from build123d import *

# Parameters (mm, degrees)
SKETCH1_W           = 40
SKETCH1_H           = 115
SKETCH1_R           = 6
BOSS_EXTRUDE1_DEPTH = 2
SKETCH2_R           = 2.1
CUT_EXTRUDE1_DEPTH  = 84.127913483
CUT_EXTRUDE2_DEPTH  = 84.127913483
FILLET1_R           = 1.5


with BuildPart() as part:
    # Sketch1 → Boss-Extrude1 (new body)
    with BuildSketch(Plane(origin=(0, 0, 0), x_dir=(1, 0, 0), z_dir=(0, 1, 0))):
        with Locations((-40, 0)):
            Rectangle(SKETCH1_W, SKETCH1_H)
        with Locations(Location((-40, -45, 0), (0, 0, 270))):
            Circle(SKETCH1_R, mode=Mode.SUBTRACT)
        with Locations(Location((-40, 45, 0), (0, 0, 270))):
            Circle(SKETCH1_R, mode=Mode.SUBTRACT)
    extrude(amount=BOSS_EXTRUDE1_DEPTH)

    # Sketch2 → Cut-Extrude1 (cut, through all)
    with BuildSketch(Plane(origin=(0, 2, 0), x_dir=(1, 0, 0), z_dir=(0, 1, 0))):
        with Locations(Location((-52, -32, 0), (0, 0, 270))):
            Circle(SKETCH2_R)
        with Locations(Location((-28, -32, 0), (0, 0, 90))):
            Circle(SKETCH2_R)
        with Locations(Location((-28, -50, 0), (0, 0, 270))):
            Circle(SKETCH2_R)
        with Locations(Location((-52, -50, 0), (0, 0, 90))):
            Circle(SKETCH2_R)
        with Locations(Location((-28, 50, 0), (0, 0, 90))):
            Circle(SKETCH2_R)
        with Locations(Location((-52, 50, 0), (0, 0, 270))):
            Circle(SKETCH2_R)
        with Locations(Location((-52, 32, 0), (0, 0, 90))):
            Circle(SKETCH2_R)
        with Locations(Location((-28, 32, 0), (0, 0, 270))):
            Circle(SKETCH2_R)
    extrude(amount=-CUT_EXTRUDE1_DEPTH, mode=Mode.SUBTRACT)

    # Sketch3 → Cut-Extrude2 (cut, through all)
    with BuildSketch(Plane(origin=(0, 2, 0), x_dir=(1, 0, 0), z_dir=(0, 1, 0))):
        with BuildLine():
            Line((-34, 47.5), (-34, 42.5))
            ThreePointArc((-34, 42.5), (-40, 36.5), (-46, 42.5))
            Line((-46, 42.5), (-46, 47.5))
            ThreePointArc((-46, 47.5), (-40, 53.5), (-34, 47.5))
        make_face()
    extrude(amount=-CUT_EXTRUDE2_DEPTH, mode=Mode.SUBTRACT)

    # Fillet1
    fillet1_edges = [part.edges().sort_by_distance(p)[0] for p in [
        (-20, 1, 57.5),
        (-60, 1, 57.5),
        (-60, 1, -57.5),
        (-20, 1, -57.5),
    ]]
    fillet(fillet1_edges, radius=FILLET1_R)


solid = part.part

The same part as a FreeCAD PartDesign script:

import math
import FreeCAD as App
import Part
import Sketcher
from FreeCAD import Vector
Q = App.Units.Quantity


def edges_at(feature, points):
    """Names of the edges that pass closest to the given points."""
    edges = feature.Shape.Edges
    near = lambda p: min(range(len(edges)), key=lambda i: edges[i].distToShape(Part.Vertex(*p))[0])
    return sorted({f"Edge{near(p) + 1}" for p in points})

doc = App.newDocument("Part")
body = doc.addObject("PartDesign::Body", "Body")

sketch1 = body.newObject("Sketcher::SketchObject", "Sketch")
sketch1.AttachmentSupport = (doc.getObject("XZ_Plane"), [""])
sketch1.MapMode = "FlatFace"
sketch1.addGeometry([
    Part.LineSegment(Vector(-60, -58, 0), Vector(-60, 58, 0)),
    Part.LineSegment(Vector(-60, 58, 0), Vector(-20, 58, 0)),
    Part.LineSegment(Vector(-20, 58, 0), Vector(-20, -58, 0)),
    Part.LineSegment(Vector(-20, -58, 0), Vector(-60, -58, 0)),
    Part.Circle(Vector(-40, 45, 0), Vector(0, 0, 1), 6),
    Part.Circle(Vector(-40, -45, 0), Vector(0, 0, 1), 6),
], False)
sketch1.addConstraint([
    Sketcher.Constraint("Coincident", 0, 2, 1, 1),
    Sketcher.Constraint("Coincident", 1, 2, 2, 1),
    Sketcher.Constraint("Coincident", 2, 2, 3, 1),
    Sketcher.Constraint("Coincident", 3, 2, 0, 1),
    Sketcher.Constraint("Vertical", 0),
    Sketcher.Constraint("Horizontal", 1),
    Sketcher.Constraint("Vertical", 2),
    Sketcher.Constraint("Horizontal", 3),
    Sketcher.Constraint("Equal", 4, 5),
    Sketcher.Constraint("Symmetric", 4, 3, 5, 3, -1),
    Sketcher.Constraint("Diameter", 4, Q("12 mm")),
    Sketcher.Constraint("DistanceX", 1, 1, 1, 2, Q("40 mm")),
    Sketcher.Constraint("DistanceY", 0, 1, 0, 2, Q("115 mm")),
    Sketcher.Constraint("DistanceX", 4, 3, -1, 1, Q("40 mm")),
    Sketcher.Constraint("DistanceY", -1, 1, 4, 3, Q("45 mm")),
    Sketcher.Constraint("DistanceX", 0, 2, -1, 1, Q("60 mm")),
    Sketcher.Constraint("DistanceY", -1, 1, 0, 2, Q("57.5 mm")),
])
pad1 = body.newObject("PartDesign::Pad", "Pad")
pad1.Profile = sketch1
pad1.Length = 2
pad1.Reversed = True

sketch2 = body.newObject("Sketcher::SketchObject", "Sketch001")
sketch2.AttachmentSupport = (doc.getObject("XZ_Plane"), [""])
sketch2.MapMode = "FlatFace"
sketch2.AttachmentOffset = App.Placement(Vector(0, 0, -2), App.Rotation())
sketch2.addGeometry([
    Part.Circle(Vector(-52, 32, 0), Vector(0, 0, 1), 2.1),
    Part.Circle(Vector(-28, 32, 0), Vector(0, 0, 1), 2.1),
    Part.Circle(Vector(-28, 50, 0), Vector(0, 0, 1), 2.1),
    Part.Circle(Vector(-52, 50, 0), Vector(0, 0, 1), 2.1),
    Part.Circle(Vector(-28, -50, 0), Vector(0, 0, 1), 2.1),
    Part.Circle(Vector(-52, -50, 0), Vector(0, 0, 1), 2.1),
    Part.Circle(Vector(-52, -32, 0), Vector(0, 0, 1), 2.1),
    Part.Circle(Vector(-28, -32, 0), Vector(0, 0, 1), 2.1),
], False)
sketch2.addConstraint([
    Sketcher.Constraint("Equal", 0, 1),
    Sketcher.Constraint("Equal", 1, 2),
    Sketcher.Constraint("Equal", 2, 3),
    Sketcher.Constraint("Equal", 3, 4),
    Sketcher.Constraint("Equal", 4, 5),
    Sketcher.Constraint("Equal", 5, 6),
    Sketcher.Constraint("Equal", 6, 7),
    Sketcher.Constraint("Symmetric", 2, 3, 4, 3, -1),
    Sketcher.Constraint("Symmetric", 3, 3, 5, 3, -1),
    Sketcher.Constraint("Symmetric", 0, 3, 6, 3, -1),
    Sketcher.Constraint("Symmetric", 1, 3, 7, 3, -1),
    Sketcher.Constraint("Horizontal", 0, 3, 1, 3),
    Sketcher.Constraint("Horizontal", 2, 3, 3, 3),
    Sketcher.Constraint("Vertical", 1, 3, 2, 3),
    Sketcher.Constraint("Vertical", 0, 3, 3, 3),
    Sketcher.Constraint("Diameter", 0, Q("4.2 mm")),
    Sketcher.Constraint("DistanceX", 0, 3, -1, 1, Q("52 mm")),
    Sketcher.Constraint("DistanceY", -1, 1, 0, 3, Q("32 mm")),
    Sketcher.Constraint("DistanceX", 1, 3, -1, 1, Q("28 mm")),
    Sketcher.Constraint("DistanceY", -1, 1, 2, 3, Q("50 mm")),
])
pocket1 = body.newObject("PartDesign::Pocket", "Pocket")
pocket1.Profile = sketch2
pocket1.Type = "ThroughAll"
pocket1.Reversed = True

sketch3 = body.newObject("Sketcher::SketchObject", "Sketch002")
sketch3.AttachmentSupport = (doc.getObject("XZ_Plane"), [""])
sketch3.MapMode = "FlatFace"
sketch3.AttachmentOffset = App.Placement(Vector(0, 0, -2), App.Rotation())
sketch3.addGeometry([
    Part.LineSegment(Vector(-34, -42, 0), Vector(-34, -48, 0)),
    Part.ArcOfCircle(Part.Circle(Vector(-40, -48, 0), Vector(0, 0, 1), 6), math.radians(180), math.radians(360)),
    Part.LineSegment(Vector(-46, -48, 0), Vector(-46, -42, 0)),
    Part.ArcOfCircle(Part.Circle(Vector(-40, -42, 0), Vector(0, 0, 1), 6), math.radians(0), math.radians(180)),
], False)
sketch3.addConstraint([
    Sketcher.Constraint("Tangent", 0, 2, 1, 2),
    Sketcher.Constraint("Tangent", 1, 1, 2, 1),
    Sketcher.Constraint("Tangent", 2, 2, 3, 2),
    Sketcher.Constraint("Tangent", 3, 1, 0, 1),
    Sketcher.Constraint("Vertical", 0),
    Sketcher.Constraint("Vertical", 2),
    Sketcher.Constraint("Radius", 1, Q("6 mm")),
    Sketcher.Constraint("DistanceY", 0, 2, 0, 1, Q("5 mm")),
    Sketcher.Constraint("DistanceX", 1, 3, -1, 1, Q("40 mm")),
    Sketcher.Constraint("DistanceY", 1, 3, -1, 1, Q("47.5 mm")),
])
pocket2 = body.newObject("PartDesign::Pocket", "Pocket001")
pocket2.Profile = sketch3
pocket2.Type = "ThroughAll"
pocket2.Reversed = True
doc.recompute()

fillet = body.newObject("PartDesign::Fillet", "Fillet")
fillet.Base = (pocket2, edges_at(pocket2, [
    (-20, 1, 57.5),
    (-60, 1, 57.5),
    (-60, 1, -57.5),
    (-20, 1, -57.5),
]))
fillet.Radius = 1.5

doc.recompute()
